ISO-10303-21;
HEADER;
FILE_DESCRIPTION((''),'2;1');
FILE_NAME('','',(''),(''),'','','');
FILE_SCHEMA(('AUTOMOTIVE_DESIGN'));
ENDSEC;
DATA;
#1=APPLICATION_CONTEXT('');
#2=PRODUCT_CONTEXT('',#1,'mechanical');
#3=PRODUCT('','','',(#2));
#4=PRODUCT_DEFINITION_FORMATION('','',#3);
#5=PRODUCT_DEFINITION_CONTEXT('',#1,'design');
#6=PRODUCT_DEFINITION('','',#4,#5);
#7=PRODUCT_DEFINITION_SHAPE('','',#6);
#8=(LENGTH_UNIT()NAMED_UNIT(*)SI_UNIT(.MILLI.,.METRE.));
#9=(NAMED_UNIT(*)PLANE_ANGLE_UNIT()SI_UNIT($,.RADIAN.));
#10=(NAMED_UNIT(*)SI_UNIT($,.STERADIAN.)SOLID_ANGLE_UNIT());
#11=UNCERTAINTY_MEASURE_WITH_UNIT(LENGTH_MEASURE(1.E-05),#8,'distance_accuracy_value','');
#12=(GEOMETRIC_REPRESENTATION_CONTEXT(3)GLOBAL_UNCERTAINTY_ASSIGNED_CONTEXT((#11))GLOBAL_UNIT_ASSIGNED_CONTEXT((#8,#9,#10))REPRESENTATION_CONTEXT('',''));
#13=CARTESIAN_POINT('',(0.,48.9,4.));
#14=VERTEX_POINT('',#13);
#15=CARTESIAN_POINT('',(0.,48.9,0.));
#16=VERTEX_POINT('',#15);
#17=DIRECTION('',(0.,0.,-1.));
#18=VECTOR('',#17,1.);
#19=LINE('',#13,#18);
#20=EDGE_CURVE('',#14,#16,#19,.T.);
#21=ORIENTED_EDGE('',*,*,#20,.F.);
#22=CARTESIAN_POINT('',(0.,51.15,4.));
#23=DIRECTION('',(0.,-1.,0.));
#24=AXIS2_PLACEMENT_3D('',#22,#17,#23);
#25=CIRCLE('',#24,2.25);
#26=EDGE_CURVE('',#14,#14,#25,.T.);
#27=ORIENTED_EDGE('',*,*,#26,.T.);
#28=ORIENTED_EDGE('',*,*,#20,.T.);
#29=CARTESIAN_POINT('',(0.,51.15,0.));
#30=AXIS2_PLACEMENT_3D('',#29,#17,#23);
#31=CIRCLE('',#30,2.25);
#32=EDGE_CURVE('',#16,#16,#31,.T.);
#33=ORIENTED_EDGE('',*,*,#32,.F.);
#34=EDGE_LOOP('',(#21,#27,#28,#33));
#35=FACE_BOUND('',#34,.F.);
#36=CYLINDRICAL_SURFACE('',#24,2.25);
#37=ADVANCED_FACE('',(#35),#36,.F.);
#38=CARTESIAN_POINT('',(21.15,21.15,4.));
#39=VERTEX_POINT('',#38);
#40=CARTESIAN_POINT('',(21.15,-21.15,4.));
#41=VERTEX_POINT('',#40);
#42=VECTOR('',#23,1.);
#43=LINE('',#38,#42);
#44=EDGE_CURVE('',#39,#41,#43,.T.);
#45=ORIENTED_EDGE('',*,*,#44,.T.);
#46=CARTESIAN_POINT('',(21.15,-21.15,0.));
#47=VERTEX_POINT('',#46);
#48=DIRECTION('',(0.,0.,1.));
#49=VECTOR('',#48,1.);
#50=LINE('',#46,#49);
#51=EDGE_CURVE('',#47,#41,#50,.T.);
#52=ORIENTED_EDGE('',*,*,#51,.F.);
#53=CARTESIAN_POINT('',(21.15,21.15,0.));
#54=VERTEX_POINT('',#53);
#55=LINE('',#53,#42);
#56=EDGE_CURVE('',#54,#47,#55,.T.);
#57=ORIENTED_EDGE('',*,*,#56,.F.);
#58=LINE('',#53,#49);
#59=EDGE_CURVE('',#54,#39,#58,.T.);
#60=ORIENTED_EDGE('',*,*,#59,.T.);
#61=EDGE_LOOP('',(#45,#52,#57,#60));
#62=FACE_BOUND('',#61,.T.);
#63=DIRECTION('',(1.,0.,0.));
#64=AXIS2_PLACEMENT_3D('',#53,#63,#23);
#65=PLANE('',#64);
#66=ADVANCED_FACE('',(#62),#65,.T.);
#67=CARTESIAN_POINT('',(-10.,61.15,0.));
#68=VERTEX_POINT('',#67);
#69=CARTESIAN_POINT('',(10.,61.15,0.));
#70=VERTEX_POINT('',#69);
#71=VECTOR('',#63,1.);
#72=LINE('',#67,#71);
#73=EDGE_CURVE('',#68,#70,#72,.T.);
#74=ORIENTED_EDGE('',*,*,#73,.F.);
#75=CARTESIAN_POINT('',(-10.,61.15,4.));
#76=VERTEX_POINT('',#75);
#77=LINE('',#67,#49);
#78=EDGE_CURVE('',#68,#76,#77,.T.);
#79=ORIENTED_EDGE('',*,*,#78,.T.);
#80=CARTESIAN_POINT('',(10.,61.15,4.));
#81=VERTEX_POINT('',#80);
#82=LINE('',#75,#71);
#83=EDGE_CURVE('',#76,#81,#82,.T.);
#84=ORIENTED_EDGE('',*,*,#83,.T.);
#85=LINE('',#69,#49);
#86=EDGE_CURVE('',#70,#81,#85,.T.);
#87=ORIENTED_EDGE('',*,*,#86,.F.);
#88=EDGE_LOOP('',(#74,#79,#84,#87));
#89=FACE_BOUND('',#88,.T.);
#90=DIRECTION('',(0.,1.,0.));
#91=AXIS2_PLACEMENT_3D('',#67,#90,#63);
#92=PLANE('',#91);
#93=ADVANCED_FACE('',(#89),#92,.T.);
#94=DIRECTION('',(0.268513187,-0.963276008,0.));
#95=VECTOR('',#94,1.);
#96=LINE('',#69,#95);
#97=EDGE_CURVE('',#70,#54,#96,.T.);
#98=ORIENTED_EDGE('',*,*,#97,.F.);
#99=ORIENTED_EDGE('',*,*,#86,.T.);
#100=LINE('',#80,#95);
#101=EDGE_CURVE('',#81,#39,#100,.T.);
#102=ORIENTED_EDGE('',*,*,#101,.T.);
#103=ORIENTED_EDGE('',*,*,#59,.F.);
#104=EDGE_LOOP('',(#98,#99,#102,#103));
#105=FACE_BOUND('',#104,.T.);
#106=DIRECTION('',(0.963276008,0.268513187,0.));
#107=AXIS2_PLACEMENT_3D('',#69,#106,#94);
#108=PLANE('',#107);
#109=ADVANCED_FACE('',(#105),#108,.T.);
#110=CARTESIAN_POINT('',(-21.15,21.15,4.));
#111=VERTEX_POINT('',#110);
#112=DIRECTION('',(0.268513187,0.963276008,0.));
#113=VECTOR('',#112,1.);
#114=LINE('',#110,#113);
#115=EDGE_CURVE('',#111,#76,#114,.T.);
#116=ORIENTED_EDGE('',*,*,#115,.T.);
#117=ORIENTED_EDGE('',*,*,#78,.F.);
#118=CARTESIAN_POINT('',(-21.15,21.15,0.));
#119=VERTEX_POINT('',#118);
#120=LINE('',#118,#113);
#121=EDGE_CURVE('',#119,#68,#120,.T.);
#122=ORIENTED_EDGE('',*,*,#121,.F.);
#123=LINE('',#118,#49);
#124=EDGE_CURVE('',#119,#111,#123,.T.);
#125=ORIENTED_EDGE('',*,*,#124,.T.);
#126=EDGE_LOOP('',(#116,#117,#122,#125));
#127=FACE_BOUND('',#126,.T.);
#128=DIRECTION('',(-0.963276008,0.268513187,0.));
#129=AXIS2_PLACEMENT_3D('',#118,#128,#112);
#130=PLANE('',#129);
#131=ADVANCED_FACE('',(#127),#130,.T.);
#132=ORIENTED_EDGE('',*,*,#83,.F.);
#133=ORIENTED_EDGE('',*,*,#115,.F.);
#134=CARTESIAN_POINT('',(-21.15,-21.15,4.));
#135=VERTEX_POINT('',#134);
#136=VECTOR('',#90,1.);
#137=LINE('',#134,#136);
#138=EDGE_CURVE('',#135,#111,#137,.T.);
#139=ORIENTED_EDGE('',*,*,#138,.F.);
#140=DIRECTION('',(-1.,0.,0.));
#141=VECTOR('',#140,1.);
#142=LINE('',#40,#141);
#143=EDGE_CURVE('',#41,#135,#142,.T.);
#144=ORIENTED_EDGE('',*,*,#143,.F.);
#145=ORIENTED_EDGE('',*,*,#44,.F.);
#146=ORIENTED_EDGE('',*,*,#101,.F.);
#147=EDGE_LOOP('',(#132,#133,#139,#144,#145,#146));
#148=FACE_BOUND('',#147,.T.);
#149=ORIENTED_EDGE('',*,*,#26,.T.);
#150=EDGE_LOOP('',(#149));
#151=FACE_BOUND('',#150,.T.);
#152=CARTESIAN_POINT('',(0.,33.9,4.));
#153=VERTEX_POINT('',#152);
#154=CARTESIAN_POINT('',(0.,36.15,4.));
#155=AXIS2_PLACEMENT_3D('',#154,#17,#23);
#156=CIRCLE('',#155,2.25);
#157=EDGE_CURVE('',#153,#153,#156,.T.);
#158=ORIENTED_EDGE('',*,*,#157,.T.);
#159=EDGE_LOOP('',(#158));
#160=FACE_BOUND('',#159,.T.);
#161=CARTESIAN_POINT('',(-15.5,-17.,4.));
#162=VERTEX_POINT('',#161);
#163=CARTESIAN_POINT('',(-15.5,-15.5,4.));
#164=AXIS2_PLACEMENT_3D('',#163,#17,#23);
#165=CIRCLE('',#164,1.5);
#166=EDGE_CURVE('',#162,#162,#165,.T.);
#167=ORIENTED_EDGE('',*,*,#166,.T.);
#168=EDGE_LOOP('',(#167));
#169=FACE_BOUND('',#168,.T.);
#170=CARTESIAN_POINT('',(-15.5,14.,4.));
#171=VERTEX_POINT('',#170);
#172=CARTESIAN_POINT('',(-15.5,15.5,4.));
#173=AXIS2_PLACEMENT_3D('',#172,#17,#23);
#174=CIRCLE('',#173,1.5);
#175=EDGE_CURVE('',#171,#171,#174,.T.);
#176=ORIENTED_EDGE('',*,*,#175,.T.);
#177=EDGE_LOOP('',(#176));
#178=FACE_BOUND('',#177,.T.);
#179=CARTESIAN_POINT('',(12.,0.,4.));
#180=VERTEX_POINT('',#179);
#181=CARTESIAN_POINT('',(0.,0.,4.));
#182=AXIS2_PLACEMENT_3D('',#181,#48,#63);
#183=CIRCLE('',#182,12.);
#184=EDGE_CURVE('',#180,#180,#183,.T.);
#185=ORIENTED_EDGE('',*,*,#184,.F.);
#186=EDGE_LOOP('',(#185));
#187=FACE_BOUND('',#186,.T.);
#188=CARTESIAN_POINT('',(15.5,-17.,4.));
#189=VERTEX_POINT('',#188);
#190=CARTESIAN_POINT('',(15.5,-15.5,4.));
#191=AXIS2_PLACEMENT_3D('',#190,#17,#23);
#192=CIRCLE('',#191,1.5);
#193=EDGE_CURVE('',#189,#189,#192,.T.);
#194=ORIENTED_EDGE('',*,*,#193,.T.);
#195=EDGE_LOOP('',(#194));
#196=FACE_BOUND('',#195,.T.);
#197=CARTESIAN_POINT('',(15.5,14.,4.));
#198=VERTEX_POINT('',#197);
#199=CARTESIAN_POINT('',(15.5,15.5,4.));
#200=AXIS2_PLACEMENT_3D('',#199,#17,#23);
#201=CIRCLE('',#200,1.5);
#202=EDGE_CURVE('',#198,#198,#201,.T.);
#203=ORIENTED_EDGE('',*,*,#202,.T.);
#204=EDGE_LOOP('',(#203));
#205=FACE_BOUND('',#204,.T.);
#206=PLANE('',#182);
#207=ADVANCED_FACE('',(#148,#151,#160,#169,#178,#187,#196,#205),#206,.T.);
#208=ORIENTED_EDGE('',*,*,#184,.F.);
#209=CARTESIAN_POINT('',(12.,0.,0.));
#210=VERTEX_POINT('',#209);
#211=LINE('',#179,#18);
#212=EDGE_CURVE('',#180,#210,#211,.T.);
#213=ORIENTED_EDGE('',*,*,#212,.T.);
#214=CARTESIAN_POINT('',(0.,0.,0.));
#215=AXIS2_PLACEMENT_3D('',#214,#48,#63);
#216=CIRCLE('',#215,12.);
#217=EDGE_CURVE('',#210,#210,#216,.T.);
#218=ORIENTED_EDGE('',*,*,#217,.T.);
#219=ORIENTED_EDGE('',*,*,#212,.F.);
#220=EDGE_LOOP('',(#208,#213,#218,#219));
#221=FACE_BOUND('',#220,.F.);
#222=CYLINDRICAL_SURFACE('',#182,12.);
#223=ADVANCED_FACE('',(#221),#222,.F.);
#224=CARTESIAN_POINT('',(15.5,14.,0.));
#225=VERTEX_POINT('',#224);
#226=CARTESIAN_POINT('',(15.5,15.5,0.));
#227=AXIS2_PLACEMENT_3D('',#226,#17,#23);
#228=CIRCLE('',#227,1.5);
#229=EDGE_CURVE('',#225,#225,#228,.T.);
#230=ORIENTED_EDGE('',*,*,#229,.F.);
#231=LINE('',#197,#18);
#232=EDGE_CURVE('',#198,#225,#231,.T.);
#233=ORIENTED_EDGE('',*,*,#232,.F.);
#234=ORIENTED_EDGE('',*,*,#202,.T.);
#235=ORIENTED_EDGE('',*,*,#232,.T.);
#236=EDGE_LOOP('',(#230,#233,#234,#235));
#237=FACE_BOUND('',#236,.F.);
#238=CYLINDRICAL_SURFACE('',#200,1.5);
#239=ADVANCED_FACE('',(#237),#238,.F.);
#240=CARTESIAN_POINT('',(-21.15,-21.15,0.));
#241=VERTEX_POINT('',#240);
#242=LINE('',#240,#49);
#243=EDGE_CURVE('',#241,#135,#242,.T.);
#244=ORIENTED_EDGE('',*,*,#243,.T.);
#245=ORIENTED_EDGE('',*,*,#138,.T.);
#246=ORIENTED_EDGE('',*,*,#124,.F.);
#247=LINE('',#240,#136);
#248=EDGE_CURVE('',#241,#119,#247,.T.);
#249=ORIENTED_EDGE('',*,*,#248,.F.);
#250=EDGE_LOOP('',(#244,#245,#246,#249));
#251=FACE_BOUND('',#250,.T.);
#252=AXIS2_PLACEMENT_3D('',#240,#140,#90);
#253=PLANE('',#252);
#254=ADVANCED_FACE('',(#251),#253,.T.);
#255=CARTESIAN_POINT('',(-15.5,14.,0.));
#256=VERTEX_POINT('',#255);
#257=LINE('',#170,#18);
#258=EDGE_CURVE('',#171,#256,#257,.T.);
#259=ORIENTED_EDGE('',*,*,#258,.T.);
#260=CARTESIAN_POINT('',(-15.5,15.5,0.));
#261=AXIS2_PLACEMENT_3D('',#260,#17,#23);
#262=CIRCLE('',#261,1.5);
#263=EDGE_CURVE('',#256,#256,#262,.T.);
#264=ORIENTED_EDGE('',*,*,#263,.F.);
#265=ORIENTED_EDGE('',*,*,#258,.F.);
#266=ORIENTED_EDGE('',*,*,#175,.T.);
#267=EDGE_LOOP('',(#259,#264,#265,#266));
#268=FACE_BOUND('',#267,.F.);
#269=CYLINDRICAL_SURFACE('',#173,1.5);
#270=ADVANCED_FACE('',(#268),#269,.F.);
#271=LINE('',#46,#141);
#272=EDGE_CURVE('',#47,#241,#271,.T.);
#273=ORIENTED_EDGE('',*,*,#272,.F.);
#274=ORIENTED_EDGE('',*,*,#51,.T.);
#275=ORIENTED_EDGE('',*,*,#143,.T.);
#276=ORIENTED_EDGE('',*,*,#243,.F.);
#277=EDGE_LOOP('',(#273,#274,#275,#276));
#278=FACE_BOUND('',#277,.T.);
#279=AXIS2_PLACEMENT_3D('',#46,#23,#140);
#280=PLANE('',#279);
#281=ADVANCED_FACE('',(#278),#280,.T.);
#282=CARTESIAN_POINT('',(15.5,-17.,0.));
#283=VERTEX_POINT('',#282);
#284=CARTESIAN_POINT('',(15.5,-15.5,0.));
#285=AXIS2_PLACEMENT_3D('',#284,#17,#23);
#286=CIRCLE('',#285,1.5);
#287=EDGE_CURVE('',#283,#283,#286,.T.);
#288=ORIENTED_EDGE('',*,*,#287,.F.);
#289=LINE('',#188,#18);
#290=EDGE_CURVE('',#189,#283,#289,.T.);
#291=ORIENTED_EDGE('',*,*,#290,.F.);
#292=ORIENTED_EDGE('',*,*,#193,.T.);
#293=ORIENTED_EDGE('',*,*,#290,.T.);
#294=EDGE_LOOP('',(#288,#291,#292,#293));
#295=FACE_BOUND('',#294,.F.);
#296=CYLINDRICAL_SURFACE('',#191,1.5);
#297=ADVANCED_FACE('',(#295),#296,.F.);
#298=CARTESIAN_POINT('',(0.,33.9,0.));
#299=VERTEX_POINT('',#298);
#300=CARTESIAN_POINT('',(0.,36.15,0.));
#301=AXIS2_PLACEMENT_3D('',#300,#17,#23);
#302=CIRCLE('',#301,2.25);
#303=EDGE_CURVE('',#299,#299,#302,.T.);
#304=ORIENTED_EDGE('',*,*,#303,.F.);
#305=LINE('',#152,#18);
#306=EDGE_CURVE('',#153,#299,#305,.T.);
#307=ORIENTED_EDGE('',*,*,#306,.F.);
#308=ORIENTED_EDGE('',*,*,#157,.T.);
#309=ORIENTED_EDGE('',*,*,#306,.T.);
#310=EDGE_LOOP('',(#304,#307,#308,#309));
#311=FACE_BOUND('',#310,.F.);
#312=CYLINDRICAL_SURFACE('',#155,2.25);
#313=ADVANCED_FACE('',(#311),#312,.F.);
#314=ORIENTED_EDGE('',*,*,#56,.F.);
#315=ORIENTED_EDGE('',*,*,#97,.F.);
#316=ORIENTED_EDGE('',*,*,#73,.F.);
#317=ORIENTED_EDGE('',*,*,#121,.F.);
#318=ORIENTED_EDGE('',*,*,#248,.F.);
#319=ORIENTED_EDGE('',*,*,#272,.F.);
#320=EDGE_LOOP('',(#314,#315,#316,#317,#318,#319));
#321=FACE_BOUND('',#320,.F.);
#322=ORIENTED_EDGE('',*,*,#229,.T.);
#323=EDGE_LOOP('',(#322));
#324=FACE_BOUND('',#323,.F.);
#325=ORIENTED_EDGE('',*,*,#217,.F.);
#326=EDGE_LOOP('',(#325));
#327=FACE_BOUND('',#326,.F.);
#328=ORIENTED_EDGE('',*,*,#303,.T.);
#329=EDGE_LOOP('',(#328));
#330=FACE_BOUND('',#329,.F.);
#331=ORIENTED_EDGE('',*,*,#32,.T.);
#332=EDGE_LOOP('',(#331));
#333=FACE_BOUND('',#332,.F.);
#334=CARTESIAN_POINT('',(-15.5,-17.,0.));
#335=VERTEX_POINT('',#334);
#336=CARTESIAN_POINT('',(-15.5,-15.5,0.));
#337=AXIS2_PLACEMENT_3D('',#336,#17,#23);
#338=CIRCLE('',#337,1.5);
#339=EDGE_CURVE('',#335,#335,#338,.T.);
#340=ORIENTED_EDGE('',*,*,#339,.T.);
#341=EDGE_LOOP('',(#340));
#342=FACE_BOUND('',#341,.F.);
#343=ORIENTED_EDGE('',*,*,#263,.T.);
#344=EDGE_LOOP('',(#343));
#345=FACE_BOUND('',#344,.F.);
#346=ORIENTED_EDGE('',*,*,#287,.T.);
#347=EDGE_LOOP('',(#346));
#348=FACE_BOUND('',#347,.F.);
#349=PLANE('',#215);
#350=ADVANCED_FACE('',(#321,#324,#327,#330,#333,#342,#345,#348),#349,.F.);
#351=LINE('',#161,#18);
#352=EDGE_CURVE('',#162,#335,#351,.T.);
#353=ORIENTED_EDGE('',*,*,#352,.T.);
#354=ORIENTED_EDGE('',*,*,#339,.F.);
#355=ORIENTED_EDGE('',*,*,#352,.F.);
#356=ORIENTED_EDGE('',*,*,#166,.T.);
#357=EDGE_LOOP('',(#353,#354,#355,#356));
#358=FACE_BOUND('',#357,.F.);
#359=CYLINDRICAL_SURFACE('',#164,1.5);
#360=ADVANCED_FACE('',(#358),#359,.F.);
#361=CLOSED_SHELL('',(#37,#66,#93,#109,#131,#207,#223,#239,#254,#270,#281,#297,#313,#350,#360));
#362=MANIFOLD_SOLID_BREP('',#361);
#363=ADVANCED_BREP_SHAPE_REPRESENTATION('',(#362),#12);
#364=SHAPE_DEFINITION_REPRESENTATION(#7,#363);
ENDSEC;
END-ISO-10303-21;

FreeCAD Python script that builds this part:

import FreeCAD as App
import Part
import Sketcher

V = App.Vector
Q = App.Units.Quantity

doc = App.newDocument("Part")
body = doc.addObject("PartDesign::Body", "Body")

# Sketch on XY plane
sketch1 = body.newObject("Sketcher::SketchObject", "Sketch")
sketch1.AttachmentSupport = (doc.getObject("XY_Plane"), [""])
sketch1.MapMode = "FlatFace"
sketch1.addGeometry(Part.LineSegment(V(21.15, -21.15, 0), V(21.15, 21.15, 0)), False)
sketch1.addGeometry(Part.LineSegment(V(21.15, 21.15, 0), V(10, 61.15, 0)), False)
sketch1.addGeometry(Part.LineSegment(V(10, 61.15, 0), V(-10, 61.15, 0)), False)
sketch1.addGeometry(Part.LineSegment(V(-10, 61.15, 0), V(-21.15, 21.15, 0)), False)
sketch1.addGeometry(Part.LineSegment(V(-21.15, 21.15, 0), V(-21.15, -21.15, 0)), False)
sketch1.addGeometry(Part.LineSegment(V(-21.15, -21.15, 0), V(21.15, -21.15, 0)), False)
sketch1.addConstraint(Sketcher.Constraint("Coincident", 0, 2, 1, 1))
sketch1.addConstraint(Sketcher.Constraint("Coincident", 1, 2, 2, 1))
sketch1.addConstraint(Sketcher.Constraint("Coincident", 2, 2, 3, 1))
sketch1.addConstraint(Sketcher.Constraint("Coincident", 3, 2, 4, 1))
sketch1.addConstraint(Sketcher.Constraint("Coincident", 4, 2, 5, 1))
sketch1.addConstraint(Sketcher.Constraint("Coincident", 5, 2, 0, 1))
sketch1.addConstraint(Sketcher.Constraint("Vertical", 0))
sketch1.addConstraint(Sketcher.Constraint("Horizontal", 2))
sketch1.addConstraint(Sketcher.Constraint("Vertical", 4))
sketch1.addConstraint(Sketcher.Constraint("Horizontal", 5))
sketch1.addConstraint(Sketcher.Constraint("Symmetric", 0, 2, 4, 2, -1, 1))
sketch1.addConstraint(Sketcher.Constraint("Horizontal", 0, 2, 3, 2))
sketch1.addConstraint(Sketcher.Constraint("Equal", 5, 0))
sketch1.addConstraint(Sketcher.Constraint("Equal", 1, 3))
sketch1.addConstraint(Sketcher.Constraint("DistanceX", 2, 2, 2, 1, Q("20 mm")))
sketch1.addConstraint(Sketcher.Constraint("DistanceX", 5, 1, 5, 2, Q("42.3 mm")))
sketch1.addConstraint(Sketcher.Constraint("DistanceY", 0, 2, 1, 2, Q("40 mm")))
pad1 = body.newObject("PartDesign::Pad", "Pad")
pad1.Profile = sketch1
pad1.Length = 4

# Sketch on XY plane
sketch2 = body.newObject("Sketcher::SketchObject", "Sketch001")
sketch2.AttachmentSupport = (doc.getObject("XY_Plane"), [""])
sketch2.MapMode = "FlatFace"
sketch2.AttachmentOffset = App.Placement(V(0, 0, 4), App.Rotation())
sketch2.addGeometry(Part.Circle(V(0, 51.15, 0), V(0, 0, 1), 2.25), False)
sketch2.addGeometry(Part.Circle(V(0, 36.15, 0), V(0, 0, 1), 2.25), False)
sketch2.addConstraint(Sketcher.Constraint("Equal", 0, 1))
sketch2.addConstraint(Sketcher.Constraint("PointOnObject", 0, 3, -2))
sketch2.addConstraint(Sketcher.Constraint("PointOnObject", 1, 3, -2))
sketch2.addConstraint(Sketcher.Constraint("Diameter", 0, Q("4.5 mm")))
sketch2.addConstraint(Sketcher.Constraint("DistanceY", 1, 3, 0, 3, Q("15 mm")))
sketch2.addConstraint(Sketcher.Constraint("DistanceY", -1, 1, 0, 3, Q("51.15 mm")))
doc.recompute()
hole = body.newObject("PartDesign::Hole", "Hole")
hole.Profile = sketch2
hole.ThreadType = "None"
hole.Diameter = 4.5
hole.DepthType = "ThroughAll"

# Sketch on XY plane
sketch3 = body.newObject("Sketcher::SketchObject", "Sketch002")
sketch3.AttachmentSupport = (doc.getObject("XY_Plane"), [""])
sketch3.MapMode = "FlatFace"
sketch3.AttachmentOffset = App.Placement(V(0, 0, 4), App.Rotation())
sketch3.addGeometry(Part.Circle(V(0, 0, 0), V(0, 0, 1), 12), False)
sketch3.addConstraint(Sketcher.Constraint("Coincident", 0, 3, -1, 1))
sketch3.addConstraint(Sketcher.Constraint("Diameter", 0, Q("24 mm")))
pocket1 = body.newObject("PartDesign::Pocket", "Pocket")
pocket1.Profile = sketch3
pocket1.Type = "ThroughAll"

# Sketch on XY plane
sketch4 = body.newObject("Sketcher::SketchObject", "Sketch003")
sketch4.AttachmentSupport = (doc.getObject("XY_Plane"), [""])
sketch4.MapMode = "FlatFace"
sketch4.AttachmentOffset = App.Placement(V(0, 0, 4), App.Rotation())
sketch4.addGeometry(Part.Circle(V(-15.5, 15.5, 0), V(0, 0, 1), 1.5), False)
sketch4.addGeometry(Part.Circle(V(15.5, 15.5, 0), V(0, 0, 1), 1.5), False)
sketch4.addGeometry(Part.Circle(V(15.5, -15.5, 0), V(0, 0, 1), 1.5), False)
sketch4.addGeometry(Part.Circle(V(-15.5, -15.5, 0), V(0, 0, 1), 1.5), False)
sketch4.addConstraint(Sketcher.Constraint("Equal", 0, 1))
sketch4.addConstraint(Sketcher.Constraint("Equal", 1, 2))
sketch4.addConstraint(Sketcher.Constraint("Equal", 2, 3))
sketch4.addConstraint(Sketcher.Constraint("Symmetric", 0, 3, 2, 3, -1, 1))
sketch4.addConstraint(Sketcher.Constraint("Symmetric", 1, 3, 3, 3, -1, 1))
sketch4.addConstraint(Sketcher.Constraint("Symmetric", 0, 3, 1, 3, -2))
sketch4.addConstraint(Sketcher.Constraint("Diameter", 0, Q("3 mm")))
sketch4.addConstraint(Sketcher.Constraint("DistanceX", 0, 3, 1, 3, Q("31 mm")))
sketch4.addConstraint(Sketcher.Constraint("DistanceY", 2, 3, 1, 3, Q("31 mm")))
doc.recompute()
hole2 = body.newObject("PartDesign::Hole", "Hole001")
hole2.Profile = sketch4
hole2.ThreadType = "None"
hole2.Diameter = 3
hole2.DepthType = "ThroughAll"

doc.recompute()
